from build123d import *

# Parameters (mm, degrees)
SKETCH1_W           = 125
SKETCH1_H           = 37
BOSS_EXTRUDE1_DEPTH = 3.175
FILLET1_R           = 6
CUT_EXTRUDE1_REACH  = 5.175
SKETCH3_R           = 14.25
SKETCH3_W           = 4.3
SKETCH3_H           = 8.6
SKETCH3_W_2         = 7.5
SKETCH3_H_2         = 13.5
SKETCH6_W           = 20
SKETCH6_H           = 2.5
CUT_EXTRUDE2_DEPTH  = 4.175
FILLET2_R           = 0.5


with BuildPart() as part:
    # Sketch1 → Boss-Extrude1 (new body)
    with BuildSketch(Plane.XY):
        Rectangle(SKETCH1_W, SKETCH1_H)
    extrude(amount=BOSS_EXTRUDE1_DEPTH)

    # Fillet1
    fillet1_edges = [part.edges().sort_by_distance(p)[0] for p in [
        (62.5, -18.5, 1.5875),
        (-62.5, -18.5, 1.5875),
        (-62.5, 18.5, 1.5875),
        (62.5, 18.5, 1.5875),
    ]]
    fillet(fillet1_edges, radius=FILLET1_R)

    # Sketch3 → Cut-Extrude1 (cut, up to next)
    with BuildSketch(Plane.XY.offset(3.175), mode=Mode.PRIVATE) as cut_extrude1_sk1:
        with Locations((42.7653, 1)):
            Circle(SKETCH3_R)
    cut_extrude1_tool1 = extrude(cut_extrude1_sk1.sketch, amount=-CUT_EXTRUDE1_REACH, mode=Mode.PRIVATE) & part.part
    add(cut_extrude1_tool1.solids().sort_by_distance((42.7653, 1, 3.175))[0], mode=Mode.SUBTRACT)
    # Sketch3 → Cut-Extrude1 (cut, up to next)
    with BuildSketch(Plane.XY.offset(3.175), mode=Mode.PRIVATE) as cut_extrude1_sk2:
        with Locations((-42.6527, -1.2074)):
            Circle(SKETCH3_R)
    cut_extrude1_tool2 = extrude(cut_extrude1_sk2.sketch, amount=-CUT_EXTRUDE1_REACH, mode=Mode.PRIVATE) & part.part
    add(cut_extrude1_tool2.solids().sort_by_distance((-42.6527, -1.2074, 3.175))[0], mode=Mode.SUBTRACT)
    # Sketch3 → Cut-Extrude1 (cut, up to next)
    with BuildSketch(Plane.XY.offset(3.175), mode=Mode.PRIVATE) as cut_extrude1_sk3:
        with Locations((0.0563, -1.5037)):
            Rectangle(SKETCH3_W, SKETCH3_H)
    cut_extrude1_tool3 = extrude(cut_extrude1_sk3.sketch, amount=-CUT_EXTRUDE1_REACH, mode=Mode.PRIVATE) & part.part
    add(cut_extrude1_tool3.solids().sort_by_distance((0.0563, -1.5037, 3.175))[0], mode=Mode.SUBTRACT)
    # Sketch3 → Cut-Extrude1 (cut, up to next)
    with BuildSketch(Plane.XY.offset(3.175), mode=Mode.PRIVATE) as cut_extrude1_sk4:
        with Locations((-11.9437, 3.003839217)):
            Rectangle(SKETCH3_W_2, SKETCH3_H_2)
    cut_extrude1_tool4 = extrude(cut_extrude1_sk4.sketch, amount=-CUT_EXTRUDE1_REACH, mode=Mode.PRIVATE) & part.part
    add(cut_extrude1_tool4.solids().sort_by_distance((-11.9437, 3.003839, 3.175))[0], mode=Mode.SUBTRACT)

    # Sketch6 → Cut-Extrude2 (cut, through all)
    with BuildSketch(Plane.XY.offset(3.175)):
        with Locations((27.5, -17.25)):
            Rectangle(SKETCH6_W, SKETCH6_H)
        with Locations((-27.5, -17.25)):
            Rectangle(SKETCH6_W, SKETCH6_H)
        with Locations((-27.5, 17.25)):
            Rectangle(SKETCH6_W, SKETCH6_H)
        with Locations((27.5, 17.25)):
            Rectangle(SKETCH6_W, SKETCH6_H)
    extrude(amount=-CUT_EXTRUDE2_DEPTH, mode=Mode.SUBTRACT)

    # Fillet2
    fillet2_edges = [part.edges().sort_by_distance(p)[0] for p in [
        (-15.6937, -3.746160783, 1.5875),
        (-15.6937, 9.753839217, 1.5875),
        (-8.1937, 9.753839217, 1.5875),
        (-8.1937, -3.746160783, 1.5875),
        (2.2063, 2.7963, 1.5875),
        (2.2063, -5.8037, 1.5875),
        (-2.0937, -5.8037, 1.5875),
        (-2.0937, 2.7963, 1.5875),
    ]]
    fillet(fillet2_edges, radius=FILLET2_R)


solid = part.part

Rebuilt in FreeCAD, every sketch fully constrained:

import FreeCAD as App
import Part
import Sketcher

V = App.Vector


def edges_at(feature, points):
    """Names of the edges that pass closest to the given points."""
    edges = feature.Shape.Edges
    near = lambda p: min(range(len(edges)), key=lambda i: edges[i].distToShape(Part.Vertex(*p))[0])
    return sorted({f"Edge{near(p) + 1}" for p in points})

doc = App.newDocument("Part")
body = doc.addObject("PartDesign::Body", "Body")

# Sketch on XY plane
sketch1 = doc.addObject("Sketcher::SketchObject", "Sketch")
body.addObject(sketch1)
sketch1.AttachmentSupport = (doc.XY_Plane, [""])
sketch1.MapMode = "FlatFace"
sketch1.addGeometry([
    Part.LineSegment(V(-62.5, 18.5, 0), V(-62.5, -18.5, 0)),
    Part.LineSegment(V(-62.5, -18.5, 0), V(62.5, -18.5, 0)),
    Part.LineSegment(V(62.5, -18.5, 0), V(62.5, 18.5, 0)),
    Part.LineSegment(V(62.5, 18.5, 0), V(-62.5, 18.5, 0)),
], False)
sketch1.addConstraint([
    Sketcher.Constraint("Coincident", 0, 2, 1, 1),
    Sketcher.Constraint("Coincident", 1, 2, 2, 1),
    Sketcher.Constraint("Coincident", 2, 2, 3, 1),
    Sketcher.Constraint("Coincident", 3, 2, 0, 1),
    Sketcher.Constraint("Vertical", 0),
    Sketcher.Constraint("Horizontal", 1),
    Sketcher.Constraint("Vertical", 2),
    Sketcher.Constraint("Horizontal", 3),
    Sketcher.Constraint("Symmetric", 0, 2, 2, 2, -1, 1),
    Sketcher.Constraint("DistanceX", 1, 1, 1, 2, 125.0),
    Sketcher.Constraint("DistanceY", 0, 2, 0, 1, 37.0),
])
pad1 = doc.addObject("PartDesign::Pad", "Pad")
body.addObject(pad1)
pad1.Profile = sketch1
pad1.Length = 3.175
doc.recompute()

fillet = doc.addObject("PartDesign::Fillet", "Fillet")
body.addObject(fillet)
fillet.Base = (pad1, edges_at(pad1, [
    (62.5, -18.5, 1.587),
    (-62.5, -18.5, 1.587),
    (-62.5, 18.5, 1.587),
    (62.5, 18.5, 1.587),
]))
fillet.Radius = 6

# Sketch on XY plane
sketch2 = doc.addObject("Sketcher::SketchObject", "Sketch001")
body.addObject(sketch2)
sketch2.AttachmentSupport = (doc.XY_Plane, [""])
sketch2.MapMode = "FlatFace"
sketch2.AttachmentOffset = App.Placement(V(0, 0, 3.175), App.Rotation())
sketch2.addGeometry(Part.Circle(V(42.7653, 1, 0), V(0, 0, 1), 14.25), False)
sketch2.addConstraint([
    Sketcher.Constraint("Diameter", 0, 28.5),
    Sketcher.Constraint("DistanceY", -1, 1, 0, 3, 1.0),
    Sketcher.Constraint("DistanceX", -1, 1, 0, 3, 42.7653),
])
pocket1 = doc.addObject("PartDesign::Pocket", "Pocket")
body.addObject(pocket1)
pocket1.Profile = sketch2
pocket1.Type = "UpToFirst"

# Sketch on XY plane
sketch3 = doc.addObject("Sketcher::SketchObject", "Sketch002")
body.addObject(sketch3)
sketch3.AttachmentSupport = (doc.XY_Plane, [""])
sketch3.MapMode = "FlatFace"
sketch3.AttachmentOffset = App.Placement(V(0, 0, 3.175), App.Rotation())
sketch3.addGeometry(Part.Circle(V(-42.6527, -1.2074, 0), V(0, 0, 1), 14.25), False)
sketch3.addConstraint([
    Sketcher.Constraint("Diameter", 0, 28.5),
    Sketcher.Constraint("DistanceX", 0, 3, -1, 1, 42.6527),
    Sketcher.Constraint("DistanceY", 0, 3, -1, 1, 1.2074),
])
pocket2 = doc.addObject("PartDesign::Pocket", "Pocket001")
body.addObject(pocket2)
pocket2.Profile = sketch3
pocket2.Type = "UpToFirst"

# Sketch on XY plane
sketch4 = doc.addObject("Sketcher::SketchObject", "Sketch003")
body.addObject(sketch4)
sketch4.AttachmentSupport = (doc.XY_Plane, [""])
sketch4.MapMode = "FlatFace"
sketch4.AttachmentOffset = App.Placement(V(0, 0, 3.175), App.Rotation())
sketch4.addGeometry([
    Part.LineSegment(V(-2.0937, 2.7963, 0), V(-2.0937, -5.8037, 0)),
    Part.LineSegment(V(-2.0937, -5.8037, 0), V(2.2063, -5.8037, 0)),
    Part.LineSegment(V(2.2063, -5.8037, 0), V(2.2063, 2.7963, 0)),
    Part.LineSegment(V(2.2063, 2.7963, 0), V(-2.0937, 2.7963, 0)),
], False)
sketch4.addConstraint([
    Sketcher.Constraint("Coincident", 0, 2, 1, 1),
    Sketcher.Constraint("Coincident", 1, 2, 2, 1),
    Sketcher.Constraint("Coincident", 2, 2, 3, 1),
    Sketcher.Constraint("Coincident", 3, 2, 0, 1),
    Sketcher.Constraint("Vertical", 0),
    Sketcher.Constraint("Horizontal", 1),
    Sketcher.Constraint("Vertical", 2),
    Sketcher.Constraint("Horizontal", 3),
    Sketcher.Constraint("DistanceX", 1, 1, 1, 2, 4.3),
    Sketcher.Constraint("DistanceY", 0, 2, 0, 1, 8.6),
    Sketcher.Constraint("DistanceX", 0, 2, -1, 1, 2.0937),
    Sketcher.Constraint("DistanceY", 0, 2, -1, 1, 5.8037),
])
pocket3 = doc.addObject("PartDesign::Pocket", "Pocket002")
body.addObject(pocket3)
pocket3.Profile = sketch4
pocket3.Type = "UpToFirst"

# Sketch on XY plane
sketch5 = doc.addObject("Sketcher::SketchObject", "Sketch004")
body.addObject(sketch5)
sketch5.AttachmentSupport = (doc.XY_Plane, [""])
sketch5.MapMode = "FlatFace"
sketch5.AttachmentOffset = App.Placement(V(0, 0, 3.175), App.Rotation())
sketch5.addGeometry([
    Part.LineSegment(V(-15.6937, 9.753839, 0), V(-15.6937, -3.746161, 0)),
    Part.LineSegment(V(-15.6937, -3.746161, 0), V(-8.1937, -3.746161, 0)),
    Part.LineSegment(V(-8.1937, -3.746161, 0), V(-8.1937, 9.753839, 0)),
    Part.LineSegment(V(-8.1937, 9.753839, 0), V(-15.6937, 9.753839, 0)),
], False)
sketch5.addConstraint([
    Sketcher.Constraint("Coincident", 0, 2, 1, 1),
    Sketcher.Constraint("Coincident", 1, 2, 2, 1),
    Sketcher.Constraint("Coincident", 2, 2, 3, 1),
    Sketcher.Constraint("Coincident", 3, 2, 0, 1),
    Sketcher.Constraint("Vertical", 0),
    Sketcher.Constraint("Horizontal", 1),
    Sketcher.Constraint("Vertical", 2),
    Sketcher.Constraint("Horizontal", 3),
    Sketcher.Constraint("DistanceX", 1, 1, 1, 2, 7.5),
    Sketcher.Constraint("DistanceY", 0, 2, 0, 1, 13.5),
    Sketcher.Constraint("DistanceX", 0, 2, -1, 1, 15.6937),
    Sketcher.Constraint("DistanceY", 0, 2, -1, 1, 3.746161),
])
pocket4 = doc.addObject("PartDesign::Pocket", "Pocket003")
body.addObject(pocket4)
pocket4.Profile = sketch5
pocket4.Type = "UpToFirst"

# Sketch on XY plane
sketch6 = doc.addObject("Sketcher::SketchObject", "Sketch005")
body.addObject(sketch6)
sketch6.AttachmentSupport = (doc.XY_Plane, [""])
sketch6.MapMode = "FlatFace"
sketch6.AttachmentOffset = App.Placement(V(0, 0, 3.175), App.Rotation())
sketch6.addGeometry([
    Part.LineSegment(V(17.5, -16, 0), V(17.5, -18.5, 0)),  # 0
    Part.LineSegment(V(17.5, -18.5, 0), V(37.5, -18.5, 0)),  # 1
    Part.LineSegment(V(37.5, -18.5, 0), V(37.5, -16, 0)),  # 2
    Part.LineSegment(V(37.5, -16, 0), V(17.5, -16, 0)),  # 3
    Part.LineSegment(V(-37.5, -16, 0), V(-37.5, -18.5, 0)),  # 4
    Part.LineSegment(V(-37.5, -18.5, 0), V(-17.5, -18.5, 0)),  # 5
    Part.LineSegment(V(-17.5, -18.5, 0), V(-17.5, -16, 0)),  # 6
    Part.LineSegment(V(-17.5, -16, 0), V(-37.5, -16, 0)),  # 7
    Part.LineSegment(V(-37.5, 18.5, 0), V(-37.5, 16, 0)),  # 8
    Part.LineSegment(V(-37.5, 16, 0), V(-17.5, 16, 0)),  # 9
    Part.LineSegment(V(-17.5, 16, 0), V(-17.5, 18.5, 0)),  # 10
    Part.LineSegment(V(-17.5, 18.5, 0), V(-37.5, 18.5, 0)),  # 11
    Part.LineSegment(V(17.5, 18.5, 0), V(17.5, 16, 0)),  # 12
    Part.LineSegment(V(17.5, 16, 0), V(37.5, 16, 0)),  # 13
    Part.LineSegment(V(37.5, 16, 0), V(37.5, 18.5, 0)),  # 14
    Part.LineSegment(V(37.5, 18.5, 0), V(17.5, 18.5, 0)),  # 15
], False)
sketch6.addConstraint([
    Sketcher.Constraint("Coincident", 0, 2, 1, 1),
    Sketcher.Constraint("Coincident", 1, 2, 2, 1),
    Sketcher.Constraint("Coincident", 2, 2, 3, 1),
    Sketcher.Constraint("Coincident", 3, 2, 0, 1),
    Sketcher.Constraint("Coincident", 4, 2, 5, 1),
    Sketcher.Constraint("Coincident", 5, 2, 6, 1),
    Sketcher.Constraint("Coincident", 6, 2, 7, 1),
    Sketcher.Constraint("Coincident", 7, 2, 4, 1),
    Sketcher.Constraint("Coincident", 8, 2, 9, 1),
    Sketcher.Constraint("Coincident", 9, 2, 10, 1),
    Sketcher.Constraint("Coincident", 10, 2, 11, 1),
    Sketcher.Constraint("Coincident", 11, 2, 8, 1),
    Sketcher.Constraint("Coincident", 12, 2, 13, 1),
    Sketcher.Constraint("Coincident", 13, 2, 14, 1),
    Sketcher.Constraint("Coincident", 14, 2, 15, 1),
    Sketcher.Constraint("Coincident", 15, 2, 12, 1),
    Sketcher.Constraint("Vertical", 0),
    Sketcher.Constraint("Horizontal", 1),
    Sketcher.Constraint("Vertical", 2),
    Sketcher.Constraint("Horizontal", 3),
    Sketcher.Constraint("Vertical", 4),
    Sketcher.Constraint("Horizontal", 5),
    Sketcher.Constraint("Vertical", 6),
    Sketcher.Constraint("Horizontal", 7),
    Sketcher.Constraint("Vertical", 8),
    Sketcher.Constraint("Horizontal", 9),
    Sketcher.Constraint("Vertical", 10),
    Sketcher.Constraint("Horizontal", 11),
    Sketcher.Constraint("Vertical", 12),
    Sketcher.Constraint("Horizontal", 13),
    Sketcher.Constraint("Vertical", 14),
    Sketcher.Constraint("Horizontal", 15),
    Sketcher.Constraint("Symmetric", 2, 2, 8, 2, -1, 1),
    Sketcher.Constraint("Symmetric", 0, 2, 10, 2, -1, 1),
    Sketcher.Constraint("Symmetric", 6, 2, 12, 2, -1, 1),
    Sketcher.Constraint("Symmetric", 4, 2, 14, 2, -1, 1),
    Sketcher.Constraint("Symmetric", 1, 2, 4, 2, -2),
    Sketcher.Constraint("Symmetric", 3, 2, 6, 2, -2),
    Sketcher.Constraint("DistanceX", 1, 1, 1, 2, 20.0),
    Sketcher.Constraint("DistanceY", 0, 2, 0, 1, 2.5),
    Sketcher.Constraint("DistanceY", 2, 2, -1, 1, 16.0),
    Sketcher.Constraint("DistanceX", 4, 2, 0, 2, 55.0),
])
pocket5 = doc.addObject("PartDesign::Pocket", "Pocket004")
body.addObject(pocket5)
pocket5.Profile = sketch6
pocket5.Type = "ThroughAll"
doc.recompute()

fillet2 = doc.addObject("PartDesign::Fillet", "Fillet001")
body.addObject(fillet2)
fillet2.Base = (pocket5, edges_at(pocket5, [
    (-15.694, -3.746, 1.587),
    (-15.694, 9.754, 1.587),
    (-8.194, 9.754, 1.587),
    (-8.194, -3.746, 1.587),
    (2.206, 2.796, 1.587),
    (2.206, -5.804, 1.587),
    (-2.094, -5.804, 1.587),
    (-2.094, 2.796, 1.587),
]))
fillet2.Radius = 0.5

doc.recompute()
